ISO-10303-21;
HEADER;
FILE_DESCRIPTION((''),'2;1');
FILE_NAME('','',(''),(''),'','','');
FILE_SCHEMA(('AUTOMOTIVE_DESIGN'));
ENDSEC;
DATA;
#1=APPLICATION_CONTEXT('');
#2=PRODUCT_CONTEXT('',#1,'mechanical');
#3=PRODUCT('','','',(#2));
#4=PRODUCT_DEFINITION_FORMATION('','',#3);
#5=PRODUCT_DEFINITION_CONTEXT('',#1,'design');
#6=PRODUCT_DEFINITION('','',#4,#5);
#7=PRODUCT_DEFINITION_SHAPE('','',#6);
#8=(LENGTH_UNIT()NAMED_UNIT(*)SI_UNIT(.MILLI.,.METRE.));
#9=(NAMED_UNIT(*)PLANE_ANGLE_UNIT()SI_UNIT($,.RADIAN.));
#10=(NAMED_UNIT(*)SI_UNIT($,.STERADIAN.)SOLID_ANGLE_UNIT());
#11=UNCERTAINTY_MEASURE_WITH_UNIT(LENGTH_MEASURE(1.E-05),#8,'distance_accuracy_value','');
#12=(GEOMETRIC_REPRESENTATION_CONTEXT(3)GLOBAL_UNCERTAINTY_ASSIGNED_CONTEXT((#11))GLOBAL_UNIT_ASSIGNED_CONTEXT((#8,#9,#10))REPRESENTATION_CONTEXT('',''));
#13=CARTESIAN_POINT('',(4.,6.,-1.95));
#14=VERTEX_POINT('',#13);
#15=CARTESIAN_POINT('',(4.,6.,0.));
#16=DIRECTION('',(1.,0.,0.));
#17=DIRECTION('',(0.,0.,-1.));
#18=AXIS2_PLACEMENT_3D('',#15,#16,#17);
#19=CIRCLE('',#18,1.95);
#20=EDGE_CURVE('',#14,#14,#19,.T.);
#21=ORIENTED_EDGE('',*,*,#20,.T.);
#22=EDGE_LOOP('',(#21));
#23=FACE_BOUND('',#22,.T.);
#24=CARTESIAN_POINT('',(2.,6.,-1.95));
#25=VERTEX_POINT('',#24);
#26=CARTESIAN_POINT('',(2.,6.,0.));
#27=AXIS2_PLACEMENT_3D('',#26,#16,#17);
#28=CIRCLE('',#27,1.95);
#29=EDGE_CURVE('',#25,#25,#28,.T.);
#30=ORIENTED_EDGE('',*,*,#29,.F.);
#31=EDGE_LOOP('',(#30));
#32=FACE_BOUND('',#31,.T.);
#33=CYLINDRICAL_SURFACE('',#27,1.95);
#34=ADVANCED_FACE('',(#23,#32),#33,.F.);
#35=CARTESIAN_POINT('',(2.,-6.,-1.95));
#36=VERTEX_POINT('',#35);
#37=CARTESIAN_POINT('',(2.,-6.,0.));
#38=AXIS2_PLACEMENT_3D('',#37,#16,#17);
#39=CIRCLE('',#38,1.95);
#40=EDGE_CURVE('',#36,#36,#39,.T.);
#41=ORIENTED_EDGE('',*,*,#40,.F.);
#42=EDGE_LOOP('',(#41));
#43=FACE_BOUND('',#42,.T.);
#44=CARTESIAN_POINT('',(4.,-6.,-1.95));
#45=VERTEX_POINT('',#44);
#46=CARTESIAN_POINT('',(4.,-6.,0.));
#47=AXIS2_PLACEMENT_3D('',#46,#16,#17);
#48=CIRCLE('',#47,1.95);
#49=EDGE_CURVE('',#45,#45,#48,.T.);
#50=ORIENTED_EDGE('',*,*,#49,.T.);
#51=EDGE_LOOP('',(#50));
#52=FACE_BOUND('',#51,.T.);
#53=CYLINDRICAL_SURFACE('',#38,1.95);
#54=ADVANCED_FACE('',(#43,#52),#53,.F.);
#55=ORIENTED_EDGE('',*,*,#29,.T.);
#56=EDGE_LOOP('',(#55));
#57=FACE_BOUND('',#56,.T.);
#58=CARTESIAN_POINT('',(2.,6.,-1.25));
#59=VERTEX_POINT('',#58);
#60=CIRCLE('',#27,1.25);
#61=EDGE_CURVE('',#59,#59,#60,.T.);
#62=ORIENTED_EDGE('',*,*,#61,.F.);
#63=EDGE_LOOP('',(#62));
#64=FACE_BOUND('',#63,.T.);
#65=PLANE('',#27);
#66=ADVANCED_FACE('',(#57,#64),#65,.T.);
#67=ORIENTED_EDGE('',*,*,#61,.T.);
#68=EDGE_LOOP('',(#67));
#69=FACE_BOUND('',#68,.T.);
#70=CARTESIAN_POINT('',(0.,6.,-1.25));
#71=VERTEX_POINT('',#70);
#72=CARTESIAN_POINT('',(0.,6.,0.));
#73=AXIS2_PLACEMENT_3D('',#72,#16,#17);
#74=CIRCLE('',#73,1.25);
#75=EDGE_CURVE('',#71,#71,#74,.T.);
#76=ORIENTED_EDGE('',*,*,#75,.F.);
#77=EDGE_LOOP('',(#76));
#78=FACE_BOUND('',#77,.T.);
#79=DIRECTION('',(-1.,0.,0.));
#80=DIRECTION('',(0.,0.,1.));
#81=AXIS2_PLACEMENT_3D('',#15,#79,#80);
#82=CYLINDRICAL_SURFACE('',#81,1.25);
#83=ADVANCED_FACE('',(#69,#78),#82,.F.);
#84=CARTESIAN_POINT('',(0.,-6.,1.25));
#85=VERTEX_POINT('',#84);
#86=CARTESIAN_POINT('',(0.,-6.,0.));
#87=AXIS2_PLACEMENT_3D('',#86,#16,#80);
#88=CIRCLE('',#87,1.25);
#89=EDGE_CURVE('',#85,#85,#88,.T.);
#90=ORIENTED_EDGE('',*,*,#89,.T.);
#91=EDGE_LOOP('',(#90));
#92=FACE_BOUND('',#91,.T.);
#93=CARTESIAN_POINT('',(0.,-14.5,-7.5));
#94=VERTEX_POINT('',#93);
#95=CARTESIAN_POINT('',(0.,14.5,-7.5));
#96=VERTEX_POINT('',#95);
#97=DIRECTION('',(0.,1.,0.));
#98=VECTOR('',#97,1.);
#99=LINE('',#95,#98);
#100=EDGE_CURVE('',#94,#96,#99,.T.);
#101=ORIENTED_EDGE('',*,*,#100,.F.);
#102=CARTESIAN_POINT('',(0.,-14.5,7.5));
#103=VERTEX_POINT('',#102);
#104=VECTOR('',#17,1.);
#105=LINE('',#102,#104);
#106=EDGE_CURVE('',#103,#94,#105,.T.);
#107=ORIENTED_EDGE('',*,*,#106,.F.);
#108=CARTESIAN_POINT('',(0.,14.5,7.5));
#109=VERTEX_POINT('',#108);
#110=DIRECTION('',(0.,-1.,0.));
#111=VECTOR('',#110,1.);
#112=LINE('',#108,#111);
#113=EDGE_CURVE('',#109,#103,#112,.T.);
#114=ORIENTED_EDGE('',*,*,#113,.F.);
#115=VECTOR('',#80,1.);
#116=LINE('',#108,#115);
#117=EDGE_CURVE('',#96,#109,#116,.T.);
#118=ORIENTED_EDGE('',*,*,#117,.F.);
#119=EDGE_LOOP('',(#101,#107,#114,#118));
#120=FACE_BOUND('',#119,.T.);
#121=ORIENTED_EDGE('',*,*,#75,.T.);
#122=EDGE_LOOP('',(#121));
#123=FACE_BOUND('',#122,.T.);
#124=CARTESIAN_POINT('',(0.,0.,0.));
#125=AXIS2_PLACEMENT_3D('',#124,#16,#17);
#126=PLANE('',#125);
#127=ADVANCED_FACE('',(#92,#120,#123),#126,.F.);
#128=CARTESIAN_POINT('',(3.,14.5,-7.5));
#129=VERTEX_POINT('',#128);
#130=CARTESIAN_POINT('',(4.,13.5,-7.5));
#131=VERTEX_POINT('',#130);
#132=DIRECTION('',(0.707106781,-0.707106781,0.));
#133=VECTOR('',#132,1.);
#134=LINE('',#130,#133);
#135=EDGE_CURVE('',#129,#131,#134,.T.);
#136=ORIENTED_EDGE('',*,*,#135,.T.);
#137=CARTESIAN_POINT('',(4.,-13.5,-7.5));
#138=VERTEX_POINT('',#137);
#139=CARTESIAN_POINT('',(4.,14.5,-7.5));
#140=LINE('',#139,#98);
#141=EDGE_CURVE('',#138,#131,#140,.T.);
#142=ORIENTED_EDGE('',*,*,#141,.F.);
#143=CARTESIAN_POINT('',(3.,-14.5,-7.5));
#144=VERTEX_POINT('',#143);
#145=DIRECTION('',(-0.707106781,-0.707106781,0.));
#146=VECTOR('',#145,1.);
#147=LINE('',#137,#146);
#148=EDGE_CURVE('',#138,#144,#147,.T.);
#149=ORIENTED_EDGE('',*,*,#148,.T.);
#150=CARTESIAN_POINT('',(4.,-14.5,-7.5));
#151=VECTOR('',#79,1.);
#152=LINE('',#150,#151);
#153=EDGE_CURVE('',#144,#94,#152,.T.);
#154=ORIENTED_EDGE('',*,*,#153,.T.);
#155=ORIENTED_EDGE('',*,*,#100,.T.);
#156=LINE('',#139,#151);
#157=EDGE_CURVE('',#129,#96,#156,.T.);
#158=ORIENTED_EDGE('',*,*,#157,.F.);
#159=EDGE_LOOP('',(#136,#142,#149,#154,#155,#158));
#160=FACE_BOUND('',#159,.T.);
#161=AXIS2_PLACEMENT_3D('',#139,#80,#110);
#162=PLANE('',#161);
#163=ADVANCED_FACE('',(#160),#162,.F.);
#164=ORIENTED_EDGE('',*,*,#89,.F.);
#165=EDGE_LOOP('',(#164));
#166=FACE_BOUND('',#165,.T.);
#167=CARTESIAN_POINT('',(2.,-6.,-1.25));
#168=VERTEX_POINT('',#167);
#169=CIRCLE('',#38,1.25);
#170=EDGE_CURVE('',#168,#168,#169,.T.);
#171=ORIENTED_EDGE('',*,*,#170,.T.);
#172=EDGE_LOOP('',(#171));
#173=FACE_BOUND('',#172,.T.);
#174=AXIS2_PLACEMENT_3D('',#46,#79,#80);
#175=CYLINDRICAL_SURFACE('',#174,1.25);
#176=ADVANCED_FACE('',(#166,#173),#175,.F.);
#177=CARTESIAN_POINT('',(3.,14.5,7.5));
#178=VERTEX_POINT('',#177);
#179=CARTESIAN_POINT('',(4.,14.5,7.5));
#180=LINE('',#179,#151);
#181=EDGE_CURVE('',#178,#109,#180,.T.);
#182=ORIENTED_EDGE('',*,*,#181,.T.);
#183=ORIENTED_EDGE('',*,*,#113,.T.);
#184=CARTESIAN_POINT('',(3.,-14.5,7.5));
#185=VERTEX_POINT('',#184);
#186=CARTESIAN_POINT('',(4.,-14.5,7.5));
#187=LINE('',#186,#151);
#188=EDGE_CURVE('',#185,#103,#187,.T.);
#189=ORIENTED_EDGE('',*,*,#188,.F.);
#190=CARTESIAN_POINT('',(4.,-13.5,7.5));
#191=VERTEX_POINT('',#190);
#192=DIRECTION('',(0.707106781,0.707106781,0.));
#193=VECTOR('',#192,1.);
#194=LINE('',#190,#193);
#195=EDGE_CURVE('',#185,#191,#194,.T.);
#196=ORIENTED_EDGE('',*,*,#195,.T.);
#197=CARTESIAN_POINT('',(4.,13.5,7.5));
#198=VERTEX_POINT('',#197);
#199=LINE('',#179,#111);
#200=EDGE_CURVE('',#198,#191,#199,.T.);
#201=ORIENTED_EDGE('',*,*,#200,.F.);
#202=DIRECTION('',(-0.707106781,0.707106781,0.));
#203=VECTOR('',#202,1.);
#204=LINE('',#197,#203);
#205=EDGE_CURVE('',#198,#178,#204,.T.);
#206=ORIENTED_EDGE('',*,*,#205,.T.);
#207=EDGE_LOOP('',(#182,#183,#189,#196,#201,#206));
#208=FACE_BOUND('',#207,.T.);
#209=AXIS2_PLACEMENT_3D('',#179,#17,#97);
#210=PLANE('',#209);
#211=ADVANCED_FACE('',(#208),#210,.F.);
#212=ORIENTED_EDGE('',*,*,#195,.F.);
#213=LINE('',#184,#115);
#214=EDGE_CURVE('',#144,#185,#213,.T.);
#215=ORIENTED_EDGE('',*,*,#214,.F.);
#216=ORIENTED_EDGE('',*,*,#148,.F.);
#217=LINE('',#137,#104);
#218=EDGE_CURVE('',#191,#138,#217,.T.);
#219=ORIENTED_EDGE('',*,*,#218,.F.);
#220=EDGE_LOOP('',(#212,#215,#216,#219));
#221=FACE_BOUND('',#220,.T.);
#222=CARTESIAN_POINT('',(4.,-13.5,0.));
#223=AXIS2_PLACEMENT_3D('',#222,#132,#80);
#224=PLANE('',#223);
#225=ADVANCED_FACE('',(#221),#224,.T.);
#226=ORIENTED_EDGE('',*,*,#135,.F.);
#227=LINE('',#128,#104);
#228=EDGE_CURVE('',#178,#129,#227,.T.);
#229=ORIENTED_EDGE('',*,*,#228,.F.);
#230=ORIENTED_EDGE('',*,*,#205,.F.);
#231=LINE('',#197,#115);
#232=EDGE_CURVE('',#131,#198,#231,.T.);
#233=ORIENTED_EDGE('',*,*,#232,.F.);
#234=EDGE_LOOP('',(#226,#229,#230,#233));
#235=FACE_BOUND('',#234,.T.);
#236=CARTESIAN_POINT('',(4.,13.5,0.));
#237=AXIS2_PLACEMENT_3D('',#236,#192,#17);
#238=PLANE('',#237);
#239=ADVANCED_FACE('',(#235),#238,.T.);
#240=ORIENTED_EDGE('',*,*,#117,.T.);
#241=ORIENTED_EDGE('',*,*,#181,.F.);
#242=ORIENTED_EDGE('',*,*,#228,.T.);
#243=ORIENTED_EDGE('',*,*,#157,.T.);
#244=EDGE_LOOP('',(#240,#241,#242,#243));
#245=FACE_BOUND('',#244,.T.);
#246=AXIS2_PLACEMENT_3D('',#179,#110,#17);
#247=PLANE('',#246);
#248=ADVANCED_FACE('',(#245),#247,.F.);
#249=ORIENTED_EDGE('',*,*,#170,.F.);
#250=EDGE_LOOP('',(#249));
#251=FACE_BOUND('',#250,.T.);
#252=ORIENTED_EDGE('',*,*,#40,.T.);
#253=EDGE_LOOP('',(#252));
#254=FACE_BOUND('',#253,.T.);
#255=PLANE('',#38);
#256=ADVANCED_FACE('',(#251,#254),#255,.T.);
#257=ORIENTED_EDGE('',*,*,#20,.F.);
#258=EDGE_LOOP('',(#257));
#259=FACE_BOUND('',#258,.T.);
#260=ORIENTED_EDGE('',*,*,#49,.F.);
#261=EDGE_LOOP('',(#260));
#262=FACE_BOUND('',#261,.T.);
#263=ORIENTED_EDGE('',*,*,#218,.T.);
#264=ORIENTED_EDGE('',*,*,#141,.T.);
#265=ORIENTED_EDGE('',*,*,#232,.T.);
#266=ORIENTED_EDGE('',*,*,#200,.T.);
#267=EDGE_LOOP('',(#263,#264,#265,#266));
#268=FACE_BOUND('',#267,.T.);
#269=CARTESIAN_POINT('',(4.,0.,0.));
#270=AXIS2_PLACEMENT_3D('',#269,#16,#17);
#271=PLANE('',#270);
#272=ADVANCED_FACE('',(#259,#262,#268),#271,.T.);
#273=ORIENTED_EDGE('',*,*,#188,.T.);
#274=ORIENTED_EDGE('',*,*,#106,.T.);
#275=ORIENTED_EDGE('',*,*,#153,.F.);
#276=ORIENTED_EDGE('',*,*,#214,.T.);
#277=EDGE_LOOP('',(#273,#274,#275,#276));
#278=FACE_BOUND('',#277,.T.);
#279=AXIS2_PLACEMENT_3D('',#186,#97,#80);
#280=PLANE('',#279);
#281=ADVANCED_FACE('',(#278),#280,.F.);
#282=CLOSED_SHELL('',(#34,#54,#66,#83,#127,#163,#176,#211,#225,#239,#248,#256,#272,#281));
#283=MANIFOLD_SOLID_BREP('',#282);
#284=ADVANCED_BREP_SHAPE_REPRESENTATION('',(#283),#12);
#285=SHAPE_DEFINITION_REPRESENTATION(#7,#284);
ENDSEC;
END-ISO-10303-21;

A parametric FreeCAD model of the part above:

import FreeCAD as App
import Part
import Sketcher


def edges_at(feature, points):
    """Names of the edges that pass closest to the given points."""
    edges = feature.Shape.Edges
    near = lambda p: min(range(len(edges)), key=lambda i: edges[i].distToShape(Part.Vertex(*p))[0])
    return sorted({f"Edge{near(p) + 1}" for p in points})

doc = App.newDocument("Part")
body = doc.addObject("PartDesign::Body", "Body")

# Sketch on YZ plane
sketch1 = body.newObject("Sketcher::SketchObject", "Sketch")
sketch1.AttachmentSupport = (doc.getObject("YZ_Plane"), [""])
sketch1.MapMode = "FlatFace"
sketch1.addGeometry([
    Part.LineSegment(App.Vector(14.5, 7.5, 0), App.Vector(-14.5, 7.5, 0)),  # 0
    Part.LineSegment(App.Vector(-14.5, 7.5, 0), App.Vector(-14.5, -7.5, 0)),  # 1
    Part.LineSegment(App.Vector(-14.5, -7.5, 0), App.Vector(14.5, -7.5, 0)),  # 2
    Part.LineSegment(App.Vector(14.5, -7.5, 0), App.Vector(14.5, 7.5, 0)),  # 3
    Part.Circle(App.Vector(-6, 0, 0), App.Vector(0, 0, 1), 1.2),  # 4
    Part.Circle(App.Vector(6, 0, 0), App.Vector(0, 0, 1), 1.2),  # 5
], False)
sketch1.addConstraint([
    Sketcher.Constraint("Coincident", 0, 2, 1, 1),
    Sketcher.Constraint("Coincident", 1, 2, 2, 1),
    Sketcher.Constraint("Coincident", 2, 2, 3, 1),
    Sketcher.Constraint("Coincident", 3, 2, 0, 1),
    Sketcher.Constraint("Horizontal", 0),
    Sketcher.Constraint("Vertical", 1),
    Sketcher.Constraint("Horizontal", 2),
    Sketcher.Constraint("Vertical", 3),
    Sketcher.Constraint("Equal", 4, 5),
    Sketcher.Constraint("Symmetric", 4, 3, 5, 3, -1, 1),
    Sketcher.Constraint("Symmetric", 0, 2, 2, 2, -1, 1),
    Sketcher.Constraint("PointOnObject", 4, 3, -1),
    Sketcher.Constraint("Diameter", 4, 2.5),
    Sketcher.Constraint("DistanceX", 0, 2, 0, 1, 29.0),
    Sketcher.Constraint("DistanceY", 1, 2, 1, 1, 15.0),
    Sketcher.Constraint("DistanceX", 4, 3, -1, 1, 6.0),
])
pad1 = body.newObject("PartDesign::Pad", "Pad")
pad1.Profile = sketch1
pad1.Length = 4

# Sketch on YZ plane
sketch2 = body.newObject("Sketcher::SketchObject", "Sketch001")
sketch2.AttachmentSupport = (doc.getObject("YZ_Plane"), [""])
sketch2.MapMode = "FlatFace"
sketch2.AttachmentOffset = App.Placement(App.Vector(0, 0, 4), App.Rotation())
sketch2.addGeometry([
    Part.Circle(App.Vector(6, 0, 0), App.Vector(0, 0, 1), 1.9),
    Part.Circle(App.Vector(-6, 0, 0), App.Vector(0, 0, 1), 1.9),
], False)
sketch2.addConstraint([
    Sketcher.Constraint("Equal", 0, 1),
    Sketcher.Constraint("Symmetric", 0, 3, 1, 3, -1, 1),
    Sketcher.Constraint("PointOnObject", 0, 3, -1),
    Sketcher.Constraint("Diameter", 0, 3.9),
    Sketcher.Constraint("DistanceX", -1, 1, 0, 3, 6.0),
])
pocket1 = body.newObject("PartDesign::Pocket", "Pocket")
pocket1.Profile = sketch2
pocket1.Length = 2
doc.recompute()

chamfer = body.newObject("PartDesign::Chamfer", "Chamfer")
chamfer.Base = (pocket1, edges_at(pocket1, [(4, -14.5, 0), (4, 14.5, 0)]))
chamfer.Size = 1

doc.recompute()
